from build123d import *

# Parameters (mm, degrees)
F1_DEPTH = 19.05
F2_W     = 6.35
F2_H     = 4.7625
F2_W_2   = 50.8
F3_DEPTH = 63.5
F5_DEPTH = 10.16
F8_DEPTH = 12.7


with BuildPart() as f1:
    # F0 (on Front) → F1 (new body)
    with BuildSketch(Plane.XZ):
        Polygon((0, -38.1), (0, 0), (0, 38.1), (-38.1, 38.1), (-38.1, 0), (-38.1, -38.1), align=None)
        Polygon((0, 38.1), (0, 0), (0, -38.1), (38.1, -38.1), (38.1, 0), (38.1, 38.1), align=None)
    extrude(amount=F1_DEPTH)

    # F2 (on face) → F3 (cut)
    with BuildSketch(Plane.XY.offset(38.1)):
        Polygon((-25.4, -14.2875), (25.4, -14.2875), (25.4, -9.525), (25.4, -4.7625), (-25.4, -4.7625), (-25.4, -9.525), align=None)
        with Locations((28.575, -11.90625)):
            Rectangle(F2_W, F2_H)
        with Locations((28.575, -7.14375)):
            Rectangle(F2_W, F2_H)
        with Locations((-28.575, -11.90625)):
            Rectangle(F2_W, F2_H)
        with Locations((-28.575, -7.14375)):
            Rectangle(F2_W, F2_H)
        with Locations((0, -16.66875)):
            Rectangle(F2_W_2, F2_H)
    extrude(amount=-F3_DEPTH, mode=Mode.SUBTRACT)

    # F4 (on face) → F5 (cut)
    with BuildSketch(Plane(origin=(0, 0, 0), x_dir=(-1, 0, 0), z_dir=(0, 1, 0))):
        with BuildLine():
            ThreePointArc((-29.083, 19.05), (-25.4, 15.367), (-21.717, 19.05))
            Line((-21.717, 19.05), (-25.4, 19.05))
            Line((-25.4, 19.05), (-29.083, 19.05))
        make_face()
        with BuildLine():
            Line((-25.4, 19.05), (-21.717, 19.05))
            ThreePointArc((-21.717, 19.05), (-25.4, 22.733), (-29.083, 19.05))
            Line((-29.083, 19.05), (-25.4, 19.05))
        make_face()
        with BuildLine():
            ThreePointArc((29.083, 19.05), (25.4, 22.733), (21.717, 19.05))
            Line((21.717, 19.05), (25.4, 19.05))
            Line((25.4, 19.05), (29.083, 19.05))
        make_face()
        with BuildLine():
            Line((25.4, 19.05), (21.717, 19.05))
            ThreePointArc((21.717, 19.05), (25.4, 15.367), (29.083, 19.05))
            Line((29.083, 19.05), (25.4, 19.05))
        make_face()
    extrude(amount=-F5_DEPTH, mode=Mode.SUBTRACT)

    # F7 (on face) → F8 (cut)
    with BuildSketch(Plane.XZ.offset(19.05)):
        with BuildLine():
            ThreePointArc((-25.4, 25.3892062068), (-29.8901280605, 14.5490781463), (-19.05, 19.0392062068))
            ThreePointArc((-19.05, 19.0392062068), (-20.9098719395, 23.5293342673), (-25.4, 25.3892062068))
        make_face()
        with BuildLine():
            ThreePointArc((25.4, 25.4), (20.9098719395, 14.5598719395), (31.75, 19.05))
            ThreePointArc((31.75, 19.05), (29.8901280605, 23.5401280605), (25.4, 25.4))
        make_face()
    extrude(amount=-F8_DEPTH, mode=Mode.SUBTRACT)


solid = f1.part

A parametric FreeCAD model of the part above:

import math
import FreeCAD as App
import Part
import Sketcher

V = App.Vector
Q = App.Units.Quantity

doc = App.newDocument("Part")
body = doc.addObject("PartDesign::Body", "Body")

# Sketch on XZ plane
sketch1 = body.newObject("Sketcher::SketchObject", "Sketch")
sketch1.AttachmentSupport = (doc.getObject("XZ_Plane"), [""])
sketch1.MapMode = "FlatFace"
sketch1.addGeometry(Part.LineSegment(V(-38, 38, 0), V(-38, -38, 0)), False)
sketch1.addGeometry(Part.LineSegment(V(-38, -38, 0), V(38, -38, 0)), False)
sketch1.addGeometry(Part.LineSegment(V(38, -38, 0), V(38, 38, 0)), False)
sketch1.addGeometry(Part.LineSegment(V(38, 38, 0), V(-38, 38, 0)), False)
sketch1.addConstraint(Sketcher.Constraint("Coincident", 0, 2, 1, 1))
sketch1.addConstraint(Sketcher.Constraint("Coincident", 1, 2, 2, 1))
sketch1.addConstraint(Sketcher.Constraint("Coincident", 2, 2, 3, 1))
sketch1.addConstraint(Sketcher.Constraint("Coincident", 3, 2, 0, 1))
sketch1.addConstraint(Sketcher.Constraint("Vertical", 0))
sketch1.addConstraint(Sketcher.Constraint("Horizontal", 1))
sketch1.addConstraint(Sketcher.Constraint("Vertical", 2))
sketch1.addConstraint(Sketcher.Constraint("Horizontal", 3))
sketch1.addConstraint(Sketcher.Constraint("Symmetric", 0, 2, 2, 2, -1, 1))
sketch1.addConstraint(Sketcher.Constraint("Equal", 3, 0))
sketch1.addConstraint(Sketcher.Constraint("DistanceX", 1, 1, 1, 2, Q("3 in")))
pad1 = body.newObject("PartDesign::Pad", "Pad")
pad1.Profile = sketch1
pad1.Length = Q("0.75 in")

# Sketch on XY plane
sketch2 = body.newObject("Sketcher::SketchObject", "Sketch001")
sketch2.AttachmentSupport = (doc.getObject("XY_Plane"), [""])
sketch2.MapMode = "FlatFace"
sketch2.AttachmentOffset = App.Placement(V(0, 0, 1.5 * 25.4), App.Rotation())
sketch2.addGeometry(Part.LineSegment(V(31.8, -14.3, 0), V(31.8, -4.8, 0)), False)
sketch2.addGeometry(Part.LineSegment(V(31.8, -4.8, 0), V(-31.8, -4.8, 0)), False)
sketch2.addGeometry(Part.LineSegment(V(-31.8, -4.8, 0), V(-31.8, -14.3, 0)), False)
sketch2.addGeometry(Part.LineSegment(V(-31.8, -14.3, 0), V(-25.4, -14.3, 0)), False)
sketch2.addGeometry(Part.LineSegment(V(-25.4, -14.3, 0), V(-25.4, -19.1, 0)), False)
sketch2.addGeometry(Part.LineSegment(V(-25.4, -19.1, 0), V(25.4, -19.1, 0)), False)
sketch2.addGeometry(Part.LineSegment(V(25.4, -19.1, 0), V(25.4, -14.3, 0)), False)
sketch2.addGeometry(Part.LineSegment(V(25.4, -14.3, 0), V(31.8, -14.3, 0)), False)
sketch2.addConstraint(Sketcher.Constraint("Coincident", 0, 2, 1, 1))
sketch2.addConstraint(Sketcher.Constraint("Coincident", 1, 2, 2, 1))
sketch2.addConstraint(Sketcher.Constraint("Coincident", 2, 2, 3, 1))
sketch2.addConstraint(Sketcher.Constraint("Coincident", 3, 2, 4, 1))
sketch2.addConstraint(Sketcher.Constraint("Coincident", 4, 2, 5, 1))
sketch2.addConstraint(Sketcher.Constraint("Coincident", 5, 2, 6, 1))
sketch2.addConstraint(Sketcher.Constraint("Coincident", 6, 2, 7, 1))
sketch2.addConstraint(Sketcher.Constraint("Coincident", 7, 2, 0, 1))
sketch2.addConstraint(Sketcher.Constraint("Vertical", 0))
sketch2.addConstraint(Sketcher.Constraint("Horizontal", 1))
sketch2.addConstraint(Sketcher.Constraint("Vertical", 2))
sketch2.addConstraint(Sketcher.Constraint("Horizontal", 3))
sketch2.addConstraint(Sketcher.Constraint("Vertical", 4))
sketch2.addConstraint(Sketcher.Constraint("Horizontal", 5))
sketch2.addConstraint(Sketcher.Constraint("Vertical", 6))
sketch2.addConstraint(Sketcher.Constraint("Horizontal", 7))
sketch2.addConstraint(Sketcher.Constraint("Symmetric", 3, 2, 6, 2, -2))
sketch2.addConstraint(Sketcher.Constraint("Equal", 3, 7))
sketch2.addConstraint(Sketcher.Constraint("DistanceX", 5, 1, 5, 2, Q("2 in")))
sketch2.addConstraint(Sketcher.Constraint("DistanceX", 1, 2, 1, 1, Q("2.5 in")))
sketch2.addConstraint(Sketcher.Constraint("DistanceY", 0, 1, 0, 2, Q("0.375 in")))
sketch2.addConstraint(Sketcher.Constraint("DistanceY", 4, 2, 4, 1, Q("0.1875 in")))
sketch2.addConstraint(Sketcher.Constraint("DistanceY", 4, 2, -1, 1, Q("0.75 in")))
pocket1 = body.newObject("PartDesign::Pocket", "Pocket")
pocket1.Profile = sketch2
pocket1.Length = Q("2.5 in")

# Sketch on XZ plane
sketch3 = body.newObject("Sketcher::SketchObject", "Sketch002")
sketch3.AttachmentSupport = (doc.getObject("XZ_Plane"), [""])
sketch3.MapMode = "FlatFace"
sketch3.addGeometry(Part.Circle(V(25.4, 19.1, 0), V(0, 0, 1), 3.7), False)
sketch3.addGeometry(Part.Circle(V(-25.4, 19.1, 0), V(0, 0, 1), 3.7), False)
sketch3.addConstraint(Sketcher.Constraint("Equal", 0, 1))
sketch3.addConstraint(Sketcher.Constraint("Symmetric", 0, 3, 1, 3, -2))
sketch3.addConstraint(Sketcher.Constraint("Diameter", 0, Q("0.29 in")))
sketch3.addConstraint(Sketcher.Constraint("DistanceX", -1, 1, 0, 3, Q("1 in")))
sketch3.addConstraint(Sketcher.Constraint("DistanceY", -1, 1, 0, 3, Q("0.75 in")))
pocket2 = body.newObject("PartDesign::Pocket", "Pocket001")
pocket2.Profile = sketch3
pocket2.Length = Q("0.4 in")
pocket2.Reversed = True

# Sketch on XZ plane
sketch4 = body.newObject("Sketcher::SketchObject", "Sketch003")
sketch4.AttachmentSupport = (doc.getObject("XZ_Plane"), [""])
sketch4.MapMode = "FlatFace"
sketch4.AttachmentOffset = App.Placement(V(0, 0, 0.75 * 25.4), App.Rotation())
sketch4.addGeometry(Part.ArcOfCircle(Part.Circle(V(-25, 19, 0), V(0, 0, 1), 6), math.radians(90), math.radians(360)), False)
sketch4.addGeometry(Part.ArcOfCircle(Part.Circle(V(-25, 19, 0), V(0, 0, 1), 6), math.radians(0), math.radians(90)), False)
sketch4.addGeometry(Part.ArcOfCircle(Part.Circle(V(25, 19, 0), V(0, 0, 1), 6), math.radians(90), math.radians(360)), False)
sketch4.addGeometry(Part.ArcOfCircle(Part.Circle(V(25, 19, 0), V(0, 0, 1), 6), math.radians(0), math.radians(90)), False)
sketch4.addConstraint(Sketcher.Constraint("Tangent", 0, 1, 1, 2))
sketch4.addConstraint(Sketcher.Constraint("Coincident", 1, 1, 0, 2))
sketch4.addConstraint(Sketcher.Constraint("Tangent", 2, 1, 3, 2))
sketch4.addConstraint(Sketcher.Constraint("Coincident", 3, 1, 2, 2))
sketch4.addConstraint(Sketcher.Constraint("Equal", 1, 2))
sketch4.addConstraint(Sketcher.Constraint("Horizontal", 0, 3, 1, 1))
sketch4.addConstraint(Sketcher.Constraint("Horizontal", 2, 3, 3, 1))
sketch4.addConstraint(Sketcher.Constraint("Vertical", 1, 3, 0, 1))
sketch4.addConstraint(Sketcher.Constraint("Vertical", 3, 3, 2, 1))
sketch4.addConstraint(Sketcher.Constraint("Radius", 0, Q("0.25 in")))
sketch4.addConstraint(Sketcher.Constraint("DistanceX", 0, 3, -1, 1, Q("1 in")))
sketch4.addConstraint(Sketcher.Constraint("DistanceX", -1, 1, 2, 3, Q("1 in")))
sketch4.addConstraint(Sketcher.Constraint("DistanceY", -1, 1, 2, 1, Q("1 in")))
sketch4.addConstraint(Sketcher.Constraint("DistanceY", -1, 1, 0, 3, 19.039206))
pocket3 = body.newObject("PartDesign::Pocket", "Pocket002")
pocket3.Profile = sketch4
pocket3.Length = Q("0.5 in")

doc.recompute()
